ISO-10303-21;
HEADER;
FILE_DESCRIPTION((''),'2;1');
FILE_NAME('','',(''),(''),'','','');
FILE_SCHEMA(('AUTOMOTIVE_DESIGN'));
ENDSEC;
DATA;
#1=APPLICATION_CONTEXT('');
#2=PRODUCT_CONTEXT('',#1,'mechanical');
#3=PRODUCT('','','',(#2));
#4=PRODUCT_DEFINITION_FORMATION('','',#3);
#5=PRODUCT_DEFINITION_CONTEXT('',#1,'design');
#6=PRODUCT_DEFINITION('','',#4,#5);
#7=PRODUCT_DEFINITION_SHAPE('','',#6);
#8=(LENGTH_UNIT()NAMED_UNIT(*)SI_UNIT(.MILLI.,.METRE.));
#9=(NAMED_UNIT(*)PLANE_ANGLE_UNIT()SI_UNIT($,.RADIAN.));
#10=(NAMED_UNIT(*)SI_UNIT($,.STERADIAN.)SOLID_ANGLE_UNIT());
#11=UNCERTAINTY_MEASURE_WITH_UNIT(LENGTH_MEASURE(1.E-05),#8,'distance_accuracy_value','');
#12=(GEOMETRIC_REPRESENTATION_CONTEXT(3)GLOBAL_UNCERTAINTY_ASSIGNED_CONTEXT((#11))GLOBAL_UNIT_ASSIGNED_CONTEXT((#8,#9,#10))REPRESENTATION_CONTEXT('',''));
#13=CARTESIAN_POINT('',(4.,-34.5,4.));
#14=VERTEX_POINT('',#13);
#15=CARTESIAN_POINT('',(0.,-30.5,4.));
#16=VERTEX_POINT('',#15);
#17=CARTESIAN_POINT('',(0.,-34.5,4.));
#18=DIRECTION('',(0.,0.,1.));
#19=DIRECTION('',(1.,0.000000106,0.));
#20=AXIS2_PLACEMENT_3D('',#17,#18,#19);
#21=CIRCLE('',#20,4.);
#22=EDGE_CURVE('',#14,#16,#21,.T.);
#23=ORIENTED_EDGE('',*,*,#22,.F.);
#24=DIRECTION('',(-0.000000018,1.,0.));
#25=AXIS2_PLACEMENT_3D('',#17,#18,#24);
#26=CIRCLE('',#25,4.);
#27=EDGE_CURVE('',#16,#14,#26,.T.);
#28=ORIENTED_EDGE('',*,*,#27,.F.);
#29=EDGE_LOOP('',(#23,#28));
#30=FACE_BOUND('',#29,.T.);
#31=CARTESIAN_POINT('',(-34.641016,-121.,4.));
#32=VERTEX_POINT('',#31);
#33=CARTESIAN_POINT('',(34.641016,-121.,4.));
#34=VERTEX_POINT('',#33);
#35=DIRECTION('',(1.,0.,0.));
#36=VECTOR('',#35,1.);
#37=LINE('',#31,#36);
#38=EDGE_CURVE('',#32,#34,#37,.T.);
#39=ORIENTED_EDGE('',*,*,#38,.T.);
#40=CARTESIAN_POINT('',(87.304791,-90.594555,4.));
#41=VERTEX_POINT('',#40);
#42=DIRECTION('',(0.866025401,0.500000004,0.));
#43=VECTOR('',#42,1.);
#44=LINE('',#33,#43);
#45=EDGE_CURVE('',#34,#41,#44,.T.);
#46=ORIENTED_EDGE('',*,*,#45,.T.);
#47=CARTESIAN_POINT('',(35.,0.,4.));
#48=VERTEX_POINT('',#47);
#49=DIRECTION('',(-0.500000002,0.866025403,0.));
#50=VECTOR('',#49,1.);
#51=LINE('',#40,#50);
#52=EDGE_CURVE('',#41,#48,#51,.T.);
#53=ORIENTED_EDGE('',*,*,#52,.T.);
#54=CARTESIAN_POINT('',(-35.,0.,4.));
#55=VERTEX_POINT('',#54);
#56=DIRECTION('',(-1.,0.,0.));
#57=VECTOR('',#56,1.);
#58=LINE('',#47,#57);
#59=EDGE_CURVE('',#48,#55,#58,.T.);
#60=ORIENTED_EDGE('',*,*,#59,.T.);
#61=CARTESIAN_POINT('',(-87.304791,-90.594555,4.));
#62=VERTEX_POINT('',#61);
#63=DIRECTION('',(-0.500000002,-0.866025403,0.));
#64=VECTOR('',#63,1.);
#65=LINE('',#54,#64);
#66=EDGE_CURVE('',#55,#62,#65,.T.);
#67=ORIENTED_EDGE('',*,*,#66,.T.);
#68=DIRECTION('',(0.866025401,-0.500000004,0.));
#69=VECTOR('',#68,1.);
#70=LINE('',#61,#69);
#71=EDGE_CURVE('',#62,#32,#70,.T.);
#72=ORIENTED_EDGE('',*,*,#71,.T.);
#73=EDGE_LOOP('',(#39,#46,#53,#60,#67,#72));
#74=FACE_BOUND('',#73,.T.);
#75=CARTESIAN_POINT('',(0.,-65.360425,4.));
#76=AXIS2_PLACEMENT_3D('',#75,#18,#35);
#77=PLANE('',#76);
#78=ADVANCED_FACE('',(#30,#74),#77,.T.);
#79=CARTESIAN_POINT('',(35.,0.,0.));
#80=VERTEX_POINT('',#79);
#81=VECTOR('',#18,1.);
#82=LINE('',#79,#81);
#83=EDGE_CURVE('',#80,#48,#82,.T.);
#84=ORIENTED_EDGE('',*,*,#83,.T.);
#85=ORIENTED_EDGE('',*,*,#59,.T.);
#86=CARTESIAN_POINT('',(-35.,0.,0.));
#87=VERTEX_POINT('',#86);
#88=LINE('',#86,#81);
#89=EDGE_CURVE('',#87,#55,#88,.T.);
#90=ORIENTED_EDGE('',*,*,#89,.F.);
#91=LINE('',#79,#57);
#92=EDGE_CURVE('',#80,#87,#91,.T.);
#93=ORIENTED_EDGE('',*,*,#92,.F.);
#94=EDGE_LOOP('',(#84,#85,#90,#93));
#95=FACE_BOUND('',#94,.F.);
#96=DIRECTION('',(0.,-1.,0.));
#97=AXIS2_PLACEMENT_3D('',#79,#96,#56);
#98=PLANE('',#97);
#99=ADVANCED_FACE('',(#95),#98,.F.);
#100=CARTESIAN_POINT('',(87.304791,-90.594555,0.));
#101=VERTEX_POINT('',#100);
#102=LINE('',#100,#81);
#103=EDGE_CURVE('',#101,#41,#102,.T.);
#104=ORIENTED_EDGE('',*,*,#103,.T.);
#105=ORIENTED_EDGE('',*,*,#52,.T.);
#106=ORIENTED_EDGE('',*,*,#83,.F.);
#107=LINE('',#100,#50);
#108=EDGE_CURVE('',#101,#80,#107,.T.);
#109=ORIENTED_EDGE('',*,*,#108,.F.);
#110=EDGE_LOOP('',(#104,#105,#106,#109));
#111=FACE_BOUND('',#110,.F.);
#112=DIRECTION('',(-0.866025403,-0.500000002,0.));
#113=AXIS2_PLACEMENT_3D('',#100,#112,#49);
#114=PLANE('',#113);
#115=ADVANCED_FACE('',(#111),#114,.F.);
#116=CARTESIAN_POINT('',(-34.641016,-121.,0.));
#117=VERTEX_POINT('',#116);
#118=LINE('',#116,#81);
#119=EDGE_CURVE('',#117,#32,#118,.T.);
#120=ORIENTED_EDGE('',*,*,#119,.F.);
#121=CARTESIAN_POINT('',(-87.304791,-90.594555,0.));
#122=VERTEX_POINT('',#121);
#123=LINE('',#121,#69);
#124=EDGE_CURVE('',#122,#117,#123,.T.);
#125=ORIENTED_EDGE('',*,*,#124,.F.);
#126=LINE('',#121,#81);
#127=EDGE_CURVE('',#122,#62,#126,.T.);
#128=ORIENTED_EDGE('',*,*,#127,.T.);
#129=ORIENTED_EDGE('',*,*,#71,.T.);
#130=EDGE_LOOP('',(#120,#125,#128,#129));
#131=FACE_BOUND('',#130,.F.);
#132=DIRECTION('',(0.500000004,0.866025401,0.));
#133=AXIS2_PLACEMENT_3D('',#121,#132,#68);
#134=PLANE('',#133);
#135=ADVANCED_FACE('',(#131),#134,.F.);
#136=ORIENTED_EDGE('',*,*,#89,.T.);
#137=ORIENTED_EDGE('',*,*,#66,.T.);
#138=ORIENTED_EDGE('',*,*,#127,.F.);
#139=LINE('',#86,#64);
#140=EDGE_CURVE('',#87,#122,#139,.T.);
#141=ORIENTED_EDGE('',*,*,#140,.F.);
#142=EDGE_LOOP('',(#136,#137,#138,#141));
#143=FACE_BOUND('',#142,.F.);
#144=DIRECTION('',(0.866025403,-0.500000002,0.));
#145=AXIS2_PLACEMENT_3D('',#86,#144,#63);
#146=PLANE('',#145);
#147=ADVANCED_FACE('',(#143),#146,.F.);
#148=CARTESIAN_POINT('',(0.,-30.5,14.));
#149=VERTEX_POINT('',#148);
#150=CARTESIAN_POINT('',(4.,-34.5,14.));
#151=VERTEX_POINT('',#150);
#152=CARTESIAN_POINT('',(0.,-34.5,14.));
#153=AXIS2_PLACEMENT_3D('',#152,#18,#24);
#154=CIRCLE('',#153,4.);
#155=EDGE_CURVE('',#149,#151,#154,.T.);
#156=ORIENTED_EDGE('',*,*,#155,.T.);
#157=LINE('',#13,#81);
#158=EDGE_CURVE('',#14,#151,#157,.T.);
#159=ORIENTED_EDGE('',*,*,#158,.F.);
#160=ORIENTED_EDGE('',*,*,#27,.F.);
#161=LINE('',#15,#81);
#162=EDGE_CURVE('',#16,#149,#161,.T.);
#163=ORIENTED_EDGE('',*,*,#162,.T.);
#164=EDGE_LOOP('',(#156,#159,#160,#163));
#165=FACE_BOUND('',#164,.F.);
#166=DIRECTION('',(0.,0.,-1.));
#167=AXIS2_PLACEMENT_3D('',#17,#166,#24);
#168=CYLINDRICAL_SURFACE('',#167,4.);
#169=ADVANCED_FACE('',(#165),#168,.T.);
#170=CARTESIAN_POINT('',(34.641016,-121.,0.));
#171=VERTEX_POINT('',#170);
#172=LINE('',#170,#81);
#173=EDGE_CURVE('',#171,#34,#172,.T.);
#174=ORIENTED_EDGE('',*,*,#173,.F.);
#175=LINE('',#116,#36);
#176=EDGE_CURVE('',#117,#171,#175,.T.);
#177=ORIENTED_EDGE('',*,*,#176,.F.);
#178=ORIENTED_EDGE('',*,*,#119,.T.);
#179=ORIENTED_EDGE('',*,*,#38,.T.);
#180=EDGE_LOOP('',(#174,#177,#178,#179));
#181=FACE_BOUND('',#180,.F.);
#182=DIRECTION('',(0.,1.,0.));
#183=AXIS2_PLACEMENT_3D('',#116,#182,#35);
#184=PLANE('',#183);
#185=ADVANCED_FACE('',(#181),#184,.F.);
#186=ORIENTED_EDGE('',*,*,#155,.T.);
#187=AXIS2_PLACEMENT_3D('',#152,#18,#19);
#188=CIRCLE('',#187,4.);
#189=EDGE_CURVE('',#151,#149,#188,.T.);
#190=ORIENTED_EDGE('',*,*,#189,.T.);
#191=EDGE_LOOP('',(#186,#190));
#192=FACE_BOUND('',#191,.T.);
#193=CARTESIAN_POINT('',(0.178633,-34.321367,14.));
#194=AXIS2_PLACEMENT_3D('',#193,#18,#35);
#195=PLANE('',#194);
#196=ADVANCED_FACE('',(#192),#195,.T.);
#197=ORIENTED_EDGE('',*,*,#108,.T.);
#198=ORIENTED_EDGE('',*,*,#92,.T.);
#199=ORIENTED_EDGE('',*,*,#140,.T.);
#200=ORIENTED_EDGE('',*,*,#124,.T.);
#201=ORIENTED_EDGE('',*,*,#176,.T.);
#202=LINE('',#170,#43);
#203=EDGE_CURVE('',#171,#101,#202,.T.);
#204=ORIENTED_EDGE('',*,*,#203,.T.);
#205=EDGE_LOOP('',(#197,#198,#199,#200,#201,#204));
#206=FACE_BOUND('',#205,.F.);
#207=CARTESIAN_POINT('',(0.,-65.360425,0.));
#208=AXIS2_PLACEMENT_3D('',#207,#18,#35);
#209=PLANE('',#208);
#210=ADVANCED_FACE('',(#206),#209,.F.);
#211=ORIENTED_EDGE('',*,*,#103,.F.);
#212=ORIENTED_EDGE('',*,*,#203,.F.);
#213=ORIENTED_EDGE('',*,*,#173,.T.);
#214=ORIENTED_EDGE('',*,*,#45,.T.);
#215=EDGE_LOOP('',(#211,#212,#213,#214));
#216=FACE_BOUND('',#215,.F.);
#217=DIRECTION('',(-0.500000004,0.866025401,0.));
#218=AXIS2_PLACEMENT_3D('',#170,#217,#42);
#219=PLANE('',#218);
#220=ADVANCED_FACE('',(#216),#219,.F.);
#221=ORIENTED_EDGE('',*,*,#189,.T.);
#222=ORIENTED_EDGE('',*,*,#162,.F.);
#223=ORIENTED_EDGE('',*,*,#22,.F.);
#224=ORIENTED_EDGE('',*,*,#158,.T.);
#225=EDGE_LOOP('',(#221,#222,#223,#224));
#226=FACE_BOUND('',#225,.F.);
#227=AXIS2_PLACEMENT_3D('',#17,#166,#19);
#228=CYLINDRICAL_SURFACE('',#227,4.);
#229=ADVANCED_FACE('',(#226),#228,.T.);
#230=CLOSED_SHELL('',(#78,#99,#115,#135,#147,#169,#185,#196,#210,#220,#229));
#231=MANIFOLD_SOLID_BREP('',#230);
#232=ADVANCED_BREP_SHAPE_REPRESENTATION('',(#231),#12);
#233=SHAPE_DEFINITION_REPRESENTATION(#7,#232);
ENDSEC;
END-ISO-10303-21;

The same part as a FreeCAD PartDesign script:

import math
import FreeCAD as App
import Part
import Sketcher
from FreeCAD import Vector
Q = App.Units.Quantity


def add_polygon(sketch, points):
    """Adds a closed chain of lines whose ends are joined by coincident constraints."""
    first, n = sketch.GeometryCount, len(points)
    for a, b in zip(points, points[1:] + points[:1]):
        sketch.addGeometry(Part.LineSegment(App.Vector(*a, 0), App.Vector(*b, 0)), False)
    for i in range(n):
        sketch.addConstraint(Sketcher.Constraint("Coincident", first + i, 2, first + (i + 1) % n, 1))

doc = App.newDocument("Part")
body = doc.addObject("PartDesign::Body", "Body")

# Sketch on XY plane
sketch1 = doc.addObject("Sketcher::SketchObject", "Sketch")
body.addObject(sketch1)
sketch1.AttachmentSupport = (doc.XY_Plane, [""])
sketch1.MapMode = "FlatFace"
add_polygon(sketch1, [(35, 0), (-35, 0), (-87.304791, -90.594555), (-34.641016, -121), (34.641016, -121), (87.304791, -90.594555)])  # lines 0-5
sketch1.addConstraint(Sketcher.Constraint("Horizontal", 0))
sketch1.addConstraint(Sketcher.Constraint("Horizontal", 3))
sketch1.addConstraint(Sketcher.Constraint("Symmetric", 0, 2, 5, 2, -1, 1))
sketch1.addConstraint(Sketcher.Constraint("Symmetric", 1, 2, 4, 2, -2))
sketch1.addConstraint(Sketcher.Constraint("Perpendicular", 1, 2))
sketch1.addConstraint(Sketcher.Constraint("Perpendicular", 4, 5))
sketch1.addConstraint(Sketcher.Constraint("DistanceX", 0, 2, 0, 1, 70.0))
sketch1.addConstraint(Sketcher.Constraint("Angle", 1, Q("-120 deg")))
sketch1.addConstraint(Sketcher.Constraint("DistanceY", 2, 2, -1, 1, 121.0))
sketch1.addConstraint(Sketcher.Constraint("DistanceX", 3, 1, 3, 2, 69.282032))
pad1 = doc.addObject("PartDesign::Pad", "Pad")
body.addObject(pad1)
pad1.Profile = sketch1
pad1.Length = 4

# Sketch on XY plane
sketch2 = doc.addObject("Sketcher::SketchObject", "Sketch001")
body.addObject(sketch2)
sketch2.AttachmentSupport = (doc.XY_Plane, [""])
sketch2.MapMode = "FlatFace"
sketch2.AttachmentOffset = App.Placement(Vector(0, 0, 4), App.Rotation())
sketch2.addGeometry(Part.ArcOfCircle(Part.Circle(Vector(0, -34.5, 0), Vector(0, 0, 1), 4), math.radians(90.000001), math.radians(359.999999)), False)
sketch2.addGeometry(Part.ArcOfCircle(Part.Circle(Vector(0, -34.5, 0), Vector(0, 0, 1), 4), math.radians(0.000006), math.radians(89.999994)), False)
sketch2.addConstraint(Sketcher.Constraint("Tangent", 0, 1, 1, 2))
sketch2.addConstraint(Sketcher.Constraint("Coincident", 1, 1, 0, 2))
sketch2.addConstraint(Sketcher.Constraint("PointOnObject", 0, 3, -2))
sketch2.addConstraint(Sketcher.Constraint("PointOnObject", 0, 1, -2))
sketch2.addConstraint(Sketcher.Constraint("Horizontal", 0, 3, 1, 1))
sketch2.addConstraint(Sketcher.Constraint("Radius", 0, 4.0))
sketch2.addConstraint(Sketcher.Constraint("DistanceY", 0, 3, -1, 1, 34.5))
pad2 = doc.addObject("PartDesign::Pad", "Pad001")
body.addObject(pad2)
pad2.Profile = sketch2
pad2.Length = 10

doc.recompute()
